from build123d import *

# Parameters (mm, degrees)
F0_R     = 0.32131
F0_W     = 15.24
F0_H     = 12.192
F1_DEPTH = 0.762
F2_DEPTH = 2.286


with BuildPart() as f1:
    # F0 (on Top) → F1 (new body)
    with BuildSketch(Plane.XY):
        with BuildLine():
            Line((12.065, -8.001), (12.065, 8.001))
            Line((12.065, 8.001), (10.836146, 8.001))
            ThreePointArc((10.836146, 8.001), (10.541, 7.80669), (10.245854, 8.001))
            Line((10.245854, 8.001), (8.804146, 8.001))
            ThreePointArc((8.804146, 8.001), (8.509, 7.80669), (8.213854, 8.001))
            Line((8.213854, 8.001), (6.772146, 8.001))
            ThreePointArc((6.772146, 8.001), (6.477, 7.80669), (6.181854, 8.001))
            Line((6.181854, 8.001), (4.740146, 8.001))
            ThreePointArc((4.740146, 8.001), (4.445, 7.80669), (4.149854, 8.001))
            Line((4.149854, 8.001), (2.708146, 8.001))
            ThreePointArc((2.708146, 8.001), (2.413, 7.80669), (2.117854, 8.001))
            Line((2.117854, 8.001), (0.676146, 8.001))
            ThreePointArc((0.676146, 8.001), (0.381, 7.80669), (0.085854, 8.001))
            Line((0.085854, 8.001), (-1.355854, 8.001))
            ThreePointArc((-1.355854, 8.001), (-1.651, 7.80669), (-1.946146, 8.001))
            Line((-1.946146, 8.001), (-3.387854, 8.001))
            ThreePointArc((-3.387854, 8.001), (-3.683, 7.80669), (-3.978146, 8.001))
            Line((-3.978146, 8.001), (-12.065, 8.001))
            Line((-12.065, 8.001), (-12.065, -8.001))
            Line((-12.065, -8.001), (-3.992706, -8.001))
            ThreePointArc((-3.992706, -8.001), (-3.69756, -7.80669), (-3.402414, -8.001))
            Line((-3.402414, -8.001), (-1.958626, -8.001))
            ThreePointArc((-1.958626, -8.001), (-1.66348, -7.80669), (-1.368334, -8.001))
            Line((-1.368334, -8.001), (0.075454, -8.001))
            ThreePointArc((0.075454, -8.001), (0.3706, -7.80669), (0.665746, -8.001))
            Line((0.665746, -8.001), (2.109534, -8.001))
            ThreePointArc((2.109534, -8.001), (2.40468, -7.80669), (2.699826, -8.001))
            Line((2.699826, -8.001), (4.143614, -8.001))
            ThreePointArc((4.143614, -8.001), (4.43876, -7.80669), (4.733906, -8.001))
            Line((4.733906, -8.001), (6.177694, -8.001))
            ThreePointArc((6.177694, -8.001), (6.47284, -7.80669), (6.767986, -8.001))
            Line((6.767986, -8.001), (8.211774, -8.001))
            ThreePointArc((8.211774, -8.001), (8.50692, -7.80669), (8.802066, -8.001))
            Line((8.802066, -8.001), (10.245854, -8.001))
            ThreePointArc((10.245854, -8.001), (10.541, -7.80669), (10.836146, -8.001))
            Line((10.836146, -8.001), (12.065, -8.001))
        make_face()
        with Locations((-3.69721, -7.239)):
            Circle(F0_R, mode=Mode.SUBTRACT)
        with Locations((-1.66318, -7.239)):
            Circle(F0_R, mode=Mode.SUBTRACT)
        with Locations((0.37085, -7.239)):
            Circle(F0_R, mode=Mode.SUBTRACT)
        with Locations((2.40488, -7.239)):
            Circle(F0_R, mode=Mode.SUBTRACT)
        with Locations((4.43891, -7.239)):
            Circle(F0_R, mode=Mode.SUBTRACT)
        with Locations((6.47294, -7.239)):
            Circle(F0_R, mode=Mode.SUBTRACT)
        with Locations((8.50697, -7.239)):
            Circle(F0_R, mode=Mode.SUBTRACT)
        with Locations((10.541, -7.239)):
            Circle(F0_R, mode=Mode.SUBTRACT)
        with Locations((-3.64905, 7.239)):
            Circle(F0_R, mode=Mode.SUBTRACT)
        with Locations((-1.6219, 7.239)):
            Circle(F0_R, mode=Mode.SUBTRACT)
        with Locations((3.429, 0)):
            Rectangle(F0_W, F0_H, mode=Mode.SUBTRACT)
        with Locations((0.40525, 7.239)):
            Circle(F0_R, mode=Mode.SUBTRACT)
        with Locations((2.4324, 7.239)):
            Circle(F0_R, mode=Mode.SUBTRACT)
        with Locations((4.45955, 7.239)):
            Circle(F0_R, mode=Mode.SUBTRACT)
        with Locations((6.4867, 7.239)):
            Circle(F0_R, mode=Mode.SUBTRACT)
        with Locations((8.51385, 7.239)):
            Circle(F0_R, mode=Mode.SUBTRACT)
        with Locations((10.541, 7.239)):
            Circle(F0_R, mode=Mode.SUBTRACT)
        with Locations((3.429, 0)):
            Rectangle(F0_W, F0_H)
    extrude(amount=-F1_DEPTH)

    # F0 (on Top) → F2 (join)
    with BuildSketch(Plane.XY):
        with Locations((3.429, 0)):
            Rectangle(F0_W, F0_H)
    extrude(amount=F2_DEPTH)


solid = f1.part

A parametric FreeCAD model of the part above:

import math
import FreeCAD as App
import Part
import Sketcher
from FreeCAD import Vector
Q = App.Units.Quantity

doc = App.newDocument("Part")
body = doc.addObject("PartDesign::Body", "Body")

# Sketch on XY plane
sketch1 = body.newObject("Sketcher::SketchObject", "Sketch")
sketch1.AttachmentSupport = (doc.getObject("XY_Plane"), [""])
sketch1.MapMode = "FlatFace"
sketch1.addGeometry([
    Part.LineSegment(Vector(12.06, -8, 0), Vector(12.06, 8, 0)),  # 0
    Part.LineSegment(Vector(12.06, 8, 0), Vector(10.84, 8, 0)),  # 1
    Part.ArcOfCircle(Part.Circle(Vector(10.54, 8.13, 0), Vector(0, 0, 1), 0.32), math.radians(-157), math.radians(-23)),  # 2
    Part.LineSegment(Vector(10.25, 8, 0), Vector(8.8, 8, 0)),  # 3
    Part.ArcOfCircle(Part.Circle(Vector(8.51, 8.13, 0), Vector(0, 0, 1), 0.32), math.radians(-157), math.radians(-23)),  # 4
    Part.LineSegment(Vector(8.21, 8, 0), Vector(6.77, 8, 0)),  # 5
    Part.ArcOfCircle(Part.Circle(Vector(6.48, 8.13, 0), Vector(0, 0, 1), 0.32), math.radians(-157), math.radians(-23)),  # 6
    Part.LineSegment(Vector(6.18, 8, 0), Vector(4.74, 8, 0)),  # 7
    Part.ArcOfCircle(Part.Circle(Vector(4.45, 8.13, 0), Vector(0, 0, 1), 0.32), math.radians(-157), math.radians(-23)),  # 8
    Part.LineSegment(Vector(4.15, 8, 0), Vector(2.71, 8, 0)),  # 9
    Part.ArcOfCircle(Part.Circle(Vector(2.41, 8.13, 0), Vector(0, 0, 1), 0.32), math.radians(-157), math.radians(-23)),  # 10
    Part.LineSegment(Vector(2.12, 8, 0), Vector(0.68, 8, 0)),  # 11
    Part.ArcOfCircle(Part.Circle(Vector(0.38, 8.13, 0), Vector(0, 0, 1), 0.32), math.radians(-157), math.radians(-23)),  # 12
    Part.LineSegment(Vector(0.09, 8, 0), Vector(-1.36, 8, 0)),  # 13
    Part.ArcOfCircle(Part.Circle(Vector(-1.65, 8.13, 0), Vector(0, 0, 1), 0.32), math.radians(-157), math.radians(-23)),  # 14
    Part.LineSegment(Vector(-1.95, 8, 0), Vector(-3.39, 8, 0)),  # 15
    Part.ArcOfCircle(Part.Circle(Vector(-3.68, 8.13, 0), Vector(0, 0, 1), 0.32), math.radians(-157), math.radians(-23)),  # 16
    Part.LineSegment(Vector(-3.98, 8, 0), Vector(-12.06, 8, 0)),  # 17
    Part.LineSegment(Vector(-12.06, 8, 0), Vector(-12.06, -8, 0)),  # 18
    Part.LineSegment(Vector(-12.06, -8, 0), Vector(-3.99, -8, 0)),  # 19
    Part.ArcOfCircle(Part.Circle(Vector(-3.7, -8.13, 0), Vector(0, 0, 1), 0.32), math.radians(23), math.radians(157)),  # 20
    Part.LineSegment(Vector(-3.4, -8, 0), Vector(-1.96, -8, 0)),  # 21
    Part.ArcOfCircle(Part.Circle(Vector(-1.66, -8.13, 0), Vector(0, 0, 1), 0.32), math.radians(23), math.radians(157)),  # 22
    Part.LineSegment(Vector(-1.37, -8, 0), Vector(0.08, -8, 0)),  # 23
    Part.ArcOfCircle(Part.Circle(Vector(0.37, -8.13, 0), Vector(0, 0, 1), 0.32), math.radians(23), math.radians(157)),  # 24
    Part.LineSegment(Vector(0.67, -8, 0), Vector(2.11, -8, 0)),  # 25
    Part.ArcOfCircle(Part.Circle(Vector(2.4, -8.13, 0), Vector(0, 0, 1), 0.32), math.radians(23), math.radians(157)),  # 26
    Part.LineSegment(Vector(2.7, -8, 0), Vector(4.14, -8, 0)),  # 27
    Part.ArcOfCircle(Part.Circle(Vector(4.44, -8.13, 0), Vector(0, 0, 1), 0.32), math.radians(23), math.radians(157)),  # 28
    Part.LineSegment(Vector(4.73, -8, 0), Vector(6.18, -8, 0)),  # 29
    Part.ArcOfCircle(Part.Circle(Vector(6.47, -8.13, 0), Vector(0, 0, 1), 0.32), math.radians(23), math.radians(157)),  # 30
    Part.LineSegment(Vector(6.77, -8, 0), Vector(8.21, -8, 0)),  # 31
    Part.ArcOfCircle(Part.Circle(Vector(8.51, -8.13, 0), Vector(0, 0, 1), 0.32), math.radians(23), math.radians(157)),  # 32
    Part.LineSegment(Vector(8.8, -8, 0), Vector(10.25, -8, 0)),  # 33
    Part.ArcOfCircle(Part.Circle(Vector(10.54, -8.13, 0), Vector(0, 0, 1), 0.32), math.radians(23), math.radians(157)),  # 34
    Part.LineSegment(Vector(10.84, -8, 0), Vector(12.06, -8, 0)),  # 35
    Part.Circle(Vector(-3.7, -7.24, 0), Vector(0, 0, 1), 0.32),  # 36
    Part.Circle(Vector(-1.66, -7.24, 0), Vector(0, 0, 1), 0.32),  # 37
    Part.Circle(Vector(0.37, -7.24, 0), Vector(0, 0, 1), 0.32),  # 38
    Part.Circle(Vector(2.4, -7.24, 0), Vector(0, 0, 1), 0.32),  # 39
    Part.Circle(Vector(4.44, -7.24, 0), Vector(0, 0, 1), 0.32),  # 40
    Part.Circle(Vector(6.47, -7.24, 0), Vector(0, 0, 1), 0.32),  # 41
    Part.Circle(Vector(8.51, -7.24, 0), Vector(0, 0, 1), 0.32),  # 42
    Part.Circle(Vector(10.54, -7.24, 0), Vector(0, 0, 1), 0.32),  # 43
    Part.Circle(Vector(-3.65, 7.24, 0), Vector(0, 0, 1), 0.32),  # 44
    Part.Circle(Vector(-1.62, 7.24, 0), Vector(0, 0, 1), 0.32),  # 45
    Part.Circle(Vector(0.41, 7.24, 0), Vector(0, 0, 1), 0.32),  # 46
    Part.Circle(Vector(2.43, 7.24, 0), Vector(0, 0, 1), 0.32),  # 47
    Part.Circle(Vector(4.46, 7.24, 0), Vector(0, 0, 1), 0.32),  # 48
    Part.Circle(Vector(6.49, 7.24, 0), Vector(0, 0, 1), 0.32),  # 49
    Part.Circle(Vector(8.51, 7.24, 0), Vector(0, 0, 1), 0.32),  # 50
    Part.Circle(Vector(10.54, 7.24, 0), Vector(0, 0, 1), 0.32),  # 51
], False)
sketch1.addConstraint([
    Sketcher.Constraint("Coincident", 0, 2, 1, 1),
    Sketcher.Constraint("Coincident", 1, 2, 2, 2),
    Sketcher.Constraint("Coincident", 2, 1, 3, 1),
    Sketcher.Constraint("Coincident", 3, 2, 4, 2),
    Sketcher.Constraint("Coincident", 4, 1, 5, 1),
    Sketcher.Constraint("Coincident", 5, 2, 6, 2),
    Sketcher.Constraint("Coincident", 6, 1, 7, 1),
    Sketcher.Constraint("Coincident", 7, 2, 8, 2),
    Sketcher.Constraint("Coincident", 8, 1, 9, 1),
    Sketcher.Constraint("Coincident", 9, 2, 10, 2),
    Sketcher.Constraint("Coincident", 10, 1, 11, 1),
    Sketcher.Constraint("Coincident", 11, 2, 12, 2),
    Sketcher.Constraint("Coincident", 12, 1, 13, 1),
    Sketcher.Constraint("Coincident", 13, 2, 14, 2),
    Sketcher.Constraint("Coincident", 14, 1, 15, 1),
    Sketcher.Constraint("Coincident", 15, 2, 16, 2),
    Sketcher.Constraint("Coincident", 16, 1, 17, 1),
    Sketcher.Constraint("Coincident", 17, 2, 18, 1),
    Sketcher.Constraint("Coincident", 18, 2, 19, 1),
    Sketcher.Constraint("Coincident", 19, 2, 20, 2),
    Sketcher.Constraint("Coincident", 20, 1, 21, 1),
    Sketcher.Constraint("Coincident", 21, 2, 22, 2),
    Sketcher.Constraint("Coincident", 22, 1, 23, 1),
    Sketcher.Constraint("Coincident", 23, 2, 24, 2),
    Sketcher.Constraint("Coincident", 24, 1, 25, 1),
    Sketcher.Constraint("Coincident", 25, 2, 26, 2),
    Sketcher.Constraint("Coincident", 26, 1, 27, 1),
    Sketcher.Constraint("Coincident", 27, 2, 28, 2),
    Sketcher.Constraint("Coincident", 28, 1, 29, 1),
    Sketcher.Constraint("Coincident", 29, 2, 30, 2),
    Sketcher.Constraint("Coincident", 30, 1, 31, 1),
    Sketcher.Constraint("Coincident", 31, 2, 32, 2),
    Sketcher.Constraint("Coincident", 32, 1, 33, 1),
    Sketcher.Constraint("Coincident", 33, 2, 34, 2),
    Sketcher.Constraint("Coincident", 34, 1, 35, 1),
    Sketcher.Constraint("Coincident", 35, 2, 0, 1),
    Sketcher.Constraint("Vertical", 0),
    Sketcher.Constraint("Horizontal", 1),
    Sketcher.Constraint("Horizontal", 3),
    Sketcher.Constraint("Horizontal", 5),
    Sketcher.Constraint("Horizontal", 7),
    Sketcher.Constraint("Horizontal", 9),
    Sketcher.Constraint("Horizontal", 11),
    Sketcher.Constraint("Horizontal", 13),
    Sketcher.Constraint("Horizontal", 15),
    Sketcher.Constraint("Horizontal", 17),
    Sketcher.Constraint("Vertical", 18),
    Sketcher.Constraint("Horizontal", 19),
    Sketcher.Constraint("Horizontal", 21),
    Sketcher.Constraint("Horizontal", 23),
    Sketcher.Constraint("Horizontal", 25),
    Sketcher.Constraint("Horizontal", 27),
    Sketcher.Constraint("Horizontal", 29),
    Sketcher.Constraint("Horizontal", 31),
    Sketcher.Constraint("Horizontal", 33),
    Sketcher.Constraint("Horizontal", 35),
    Sketcher.Constraint("Equal", 2, 4),
    Sketcher.Constraint("Equal", 4, 6),
    Sketcher.Constraint("Equal", 6, 8),
    Sketcher.Constraint("Equal", 8, 10),
    Sketcher.Constraint("Equal", 10, 12),
    Sketcher.Constraint("Equal", 12, 14),
    Sketcher.Constraint("Equal", 14, 16),
    Sketcher.Constraint("Equal", 16, 20),
    Sketcher.Constraint("Equal", 20, 22),
    Sketcher.Constraint("Equal", 22, 24),
    Sketcher.Constraint("Equal", 24, 26),
    Sketcher.Constraint("Equal", 26, 28),
    Sketcher.Constraint("Equal", 28, 30),
    Sketcher.Constraint("Equal", 30, 32),
    Sketcher.Constraint("Equal", 32, 34),
    Sketcher.Constraint("Equal", 34, 36),
    Sketcher.Constraint("Equal", 36, 37),
    Sketcher.Constraint("Equal", 37, 38),
    Sketcher.Constraint("Equal", 38, 39),
    Sketcher.Constraint("Equal", 39, 40),
    Sketcher.Constraint("Equal", 40, 41),
    Sketcher.Constraint("Equal", 41, 42),
    Sketcher.Constraint("Equal", 42, 43),
    Sketcher.Constraint("Equal", 43, 44),
    Sketcher.Constraint("Equal", 44, 45),
    Sketcher.Constraint("Equal", 45, 46),
    Sketcher.Constraint("Equal", 46, 47),
    Sketcher.Constraint("Equal", 47, 48),
    Sketcher.Constraint("Equal", 48, 49),
    Sketcher.Constraint("Equal", 49, 50),
    Sketcher.Constraint("Equal", 50, 51),
    Sketcher.Constraint("Symmetric", 0, 2, 18, 2, -1, 1),
    Sketcher.Constraint("Symmetric", 2, 3, 34, 3, -1),
    Sketcher.Constraint("Symmetric", 43, 3, 51, 3, -1),
    Sketcher.Constraint("Horizontal", 2, 3, 4, 3),
    Sketcher.Constraint("Horizontal", 4, 3, 6, 3),
    Sketcher.Constraint("Horizontal", 6, 3, 8, 3),
    Sketcher.Constraint("Horizontal", 8, 3, 10, 3),
    Sketcher.Constraint("Horizontal", 10, 3, 12, 3),
    Sketcher.Constraint("Horizontal", 12, 3, 14, 3),
    Sketcher.Constraint("Horizontal", 14, 3, 16, 3),
    Sketcher.Constraint("Horizontal", 20, 3, 22, 3),
    Sketcher.Constraint("Horizontal", 22, 3, 24, 3),
    Sketcher.Constraint("Horizontal", 24, 3, 26, 3),
    Sketcher.Constraint("Horizontal", 26, 3, 28, 3),
    Sketcher.Constraint("Horizontal", 28, 3, 30, 3),
    Sketcher.Constraint("Horizontal", 30, 3, 32, 3),
    Sketcher.Constraint("Horizontal", 32, 3, 34, 3),
    Sketcher.Constraint("Horizontal", 36, 3, 37, 3),
    Sketcher.Constraint("Horizontal", 37, 3, 38, 3),
    Sketcher.Constraint("Horizontal", 38, 3, 39, 3),
    Sketcher.Constraint("Horizontal", 39, 3, 40, 3),
    Sketcher.Constraint("Horizontal", 40, 3, 41, 3),
    Sketcher.Constraint("Horizontal", 41, 3, 42, 3),
    Sketcher.Constraint("Horizontal", 42, 3, 43, 3),
    Sketcher.Constraint("Horizontal", 44, 3, 45, 3),
    Sketcher.Constraint("Horizontal", 45, 3, 46, 3),
    Sketcher.Constraint("Horizontal", 46, 3, 47, 3),
    Sketcher.Constraint("Horizontal", 47, 3, 48, 3),
    Sketcher.Constraint("Horizontal", 48, 3, 49, 3),
    Sketcher.Constraint("Horizontal", 49, 3, 50, 3),
    Sketcher.Constraint("Horizontal", 50, 3, 51, 3),
    Sketcher.Constraint("Horizontal", 1, 2, 2, 1),
    Sketcher.Constraint("Horizontal", 3, 2, 4, 1),
    Sketcher.Constraint("Horizontal", 5, 2, 6, 1),
    Sketcher.Constraint("Horizontal", 7, 2, 8, 1),
    Sketcher.Constraint("Horizontal", 9, 2, 10, 1),
    Sketcher.Constraint("Horizontal", 11, 2, 12, 1),
    Sketcher.Constraint("Horizontal", 13, 2, 14, 1),
    Sketcher.Constraint("Horizontal", 15, 2, 16, 1),
    Sketcher.Constraint("Horizontal", 19, 2, 20, 1),
    Sketcher.Constraint("Horizontal", 21, 2, 22, 1),
    Sketcher.Constraint("Horizontal", 23, 2, 24, 1),
    Sketcher.Constraint("Horizontal", 25, 2, 26, 1),
    Sketcher.Constraint("Horizontal", 27, 2, 28, 1),
    Sketcher.Constraint("Horizontal", 29, 2, 30, 1),
    Sketcher.Constraint("Horizontal", 31, 2, 32, 1),
    Sketcher.Constraint("Horizontal", 33, 2, 34, 1),
    Sketcher.Constraint("Vertical", 34, 3, 43, 3),
    Sketcher.Constraint("Equal", 3, 5),
    Sketcher.Constraint("Equal", 5, 7),
    Sketcher.Constraint("Equal", 7, 9),
    Sketcher.Constraint("Equal", 9, 11),
    Sketcher.Constraint("Equal", 11, 13),
    Sketcher.Constraint("Equal", 13, 15),
    Sketcher.Constraint("Equal", 21, 23),
    Sketcher.Constraint("Equal", 23, 25),
    Sketcher.Constraint("Equal", 25, 27),
    Sketcher.Constraint("Equal", 27, 29),
    Sketcher.Constraint("Equal", 29, 31),
    Sketcher.Constraint("Equal", 31, 33),
    Sketcher.Constraint("Diameter", 36, Q("0.0253 in")),
    Sketcher.Constraint("DistanceY", 0, 1, 0, 2, Q("0.63 in")),
    Sketcher.Constraint("DistanceY", -1, 1, 2, 3, Q("0.32 in")),
    Sketcher.Constraint("DistanceX", -1, 1, 2, 3, Q("0.415 in")),
    Sketcher.Constraint("DistanceX", -1, 1, 4, 3, Q("0.335 in")),
    Sketcher.Constraint("DistanceY", 36, 3, -1, 1, Q("0.285 in")),
    Sketcher.Constraint("DistanceX", -1, 1, 0, 2, Q("0.475 in")),
    Sketcher.Constraint("DistanceX", 25, 1, 25, 2, Q("1.443788 mm")),
    Sketcher.Constraint("DistanceX", 45, 3, -1, 1, Q("1.6219 mm")),
    Sketcher.Constraint("DistanceX", -1, 1, 47, 3, Q("2.4324 mm")),
    Sketcher.Constraint("DistanceX", -1, 1, 49, 3, Q("6.4867 mm")),
    Sketcher.Constraint("DistanceX", 36, 3, -1, 1, Q("3.69721 mm")),
    Sketcher.Constraint("DistanceX", 37, 3, -1, 1, Q("1.66318 mm")),
    Sketcher.Constraint("DistanceX", -1, 1, 38, 3, Q("0.37085 mm")),
    Sketcher.Constraint("DistanceX", -1, 1, 39, 3, Q("2.40488 mm")),
    Sketcher.Constraint("DistanceX", -1, 1, 40, 3, Q("4.43891 mm")),
    Sketcher.Constraint("DistanceX", -1, 1, 41, 3, Q("6.47294 mm")),
    Sketcher.Constraint("DistanceX", -1, 1, 42, 3, Q("8.50697 mm")),
    Sketcher.Constraint("DistanceX", 44, 3, -1, 1, Q("3.64905 mm")),
    Sketcher.Constraint("DistanceX", -1, 1, 46, 3, Q("0.40525 mm")),
    Sketcher.Constraint("DistanceX", -1, 1, 48, 3, Q("4.45955 mm")),
    Sketcher.Constraint("DistanceX", -1, 1, 50, 3, Q("8.51385 mm")),
])
pad1 = body.newObject("PartDesign::Pad", "Pad")
pad1.Profile = sketch1
pad1.Length = Q("0.03 in")
pad1.Reversed = True

# Sketch on XY plane
sketch2 = body.newObject("Sketcher::SketchObject", "Sketch001")
sketch2.AttachmentSupport = (doc.getObject("XY_Plane"), [""])
sketch2.MapMode = "FlatFace"
sketch2.addGeometry([
    Part.LineSegment(Vector(-4, 6, 0), Vector(-4, -6, 0)),
    Part.LineSegment(Vector(-4, -6, 0), Vector(11, -6, 0)),
    Part.LineSegment(Vector(11, -6, 0), Vector(11, 6, 0)),
    Part.LineSegment(Vector(11, 6, 0), Vector(-4, 6, 0)),
], False)
sketch2.addConstraint([
    Sketcher.Constraint("Coincident", 0, 2, 1, 1),
    Sketcher.Constraint("Coincident", 1, 2, 2, 1),
    Sketcher.Constraint("Coincident", 2, 2, 3, 1),
    Sketcher.Constraint("Coincident", 3, 2, 0, 1),
    Sketcher.Constraint("Vertical", 0),
    Sketcher.Constraint("Horizontal", 1),
    Sketcher.Constraint("Vertical", 2),
    Sketcher.Constraint("Horizontal", 3),
    Sketcher.Constraint("DistanceX", 1, 1, 1, 2, Q("0.6 in")),
    Sketcher.Constraint("DistanceY", 0, 2, 0, 1, Q("0.48 in")),
    Sketcher.Constraint("DistanceY", 0, 2, -1, 1, Q("0.24 in")),
    Sketcher.Constraint("DistanceX", 0, 2, -1, 1, Q("0.165 in")),
])
pad2 = body.newObject("PartDesign::Pad", "Pad001")
pad2.Profile = sketch2
pad2.Length = Q("0.09 in")

doc.recompute()
